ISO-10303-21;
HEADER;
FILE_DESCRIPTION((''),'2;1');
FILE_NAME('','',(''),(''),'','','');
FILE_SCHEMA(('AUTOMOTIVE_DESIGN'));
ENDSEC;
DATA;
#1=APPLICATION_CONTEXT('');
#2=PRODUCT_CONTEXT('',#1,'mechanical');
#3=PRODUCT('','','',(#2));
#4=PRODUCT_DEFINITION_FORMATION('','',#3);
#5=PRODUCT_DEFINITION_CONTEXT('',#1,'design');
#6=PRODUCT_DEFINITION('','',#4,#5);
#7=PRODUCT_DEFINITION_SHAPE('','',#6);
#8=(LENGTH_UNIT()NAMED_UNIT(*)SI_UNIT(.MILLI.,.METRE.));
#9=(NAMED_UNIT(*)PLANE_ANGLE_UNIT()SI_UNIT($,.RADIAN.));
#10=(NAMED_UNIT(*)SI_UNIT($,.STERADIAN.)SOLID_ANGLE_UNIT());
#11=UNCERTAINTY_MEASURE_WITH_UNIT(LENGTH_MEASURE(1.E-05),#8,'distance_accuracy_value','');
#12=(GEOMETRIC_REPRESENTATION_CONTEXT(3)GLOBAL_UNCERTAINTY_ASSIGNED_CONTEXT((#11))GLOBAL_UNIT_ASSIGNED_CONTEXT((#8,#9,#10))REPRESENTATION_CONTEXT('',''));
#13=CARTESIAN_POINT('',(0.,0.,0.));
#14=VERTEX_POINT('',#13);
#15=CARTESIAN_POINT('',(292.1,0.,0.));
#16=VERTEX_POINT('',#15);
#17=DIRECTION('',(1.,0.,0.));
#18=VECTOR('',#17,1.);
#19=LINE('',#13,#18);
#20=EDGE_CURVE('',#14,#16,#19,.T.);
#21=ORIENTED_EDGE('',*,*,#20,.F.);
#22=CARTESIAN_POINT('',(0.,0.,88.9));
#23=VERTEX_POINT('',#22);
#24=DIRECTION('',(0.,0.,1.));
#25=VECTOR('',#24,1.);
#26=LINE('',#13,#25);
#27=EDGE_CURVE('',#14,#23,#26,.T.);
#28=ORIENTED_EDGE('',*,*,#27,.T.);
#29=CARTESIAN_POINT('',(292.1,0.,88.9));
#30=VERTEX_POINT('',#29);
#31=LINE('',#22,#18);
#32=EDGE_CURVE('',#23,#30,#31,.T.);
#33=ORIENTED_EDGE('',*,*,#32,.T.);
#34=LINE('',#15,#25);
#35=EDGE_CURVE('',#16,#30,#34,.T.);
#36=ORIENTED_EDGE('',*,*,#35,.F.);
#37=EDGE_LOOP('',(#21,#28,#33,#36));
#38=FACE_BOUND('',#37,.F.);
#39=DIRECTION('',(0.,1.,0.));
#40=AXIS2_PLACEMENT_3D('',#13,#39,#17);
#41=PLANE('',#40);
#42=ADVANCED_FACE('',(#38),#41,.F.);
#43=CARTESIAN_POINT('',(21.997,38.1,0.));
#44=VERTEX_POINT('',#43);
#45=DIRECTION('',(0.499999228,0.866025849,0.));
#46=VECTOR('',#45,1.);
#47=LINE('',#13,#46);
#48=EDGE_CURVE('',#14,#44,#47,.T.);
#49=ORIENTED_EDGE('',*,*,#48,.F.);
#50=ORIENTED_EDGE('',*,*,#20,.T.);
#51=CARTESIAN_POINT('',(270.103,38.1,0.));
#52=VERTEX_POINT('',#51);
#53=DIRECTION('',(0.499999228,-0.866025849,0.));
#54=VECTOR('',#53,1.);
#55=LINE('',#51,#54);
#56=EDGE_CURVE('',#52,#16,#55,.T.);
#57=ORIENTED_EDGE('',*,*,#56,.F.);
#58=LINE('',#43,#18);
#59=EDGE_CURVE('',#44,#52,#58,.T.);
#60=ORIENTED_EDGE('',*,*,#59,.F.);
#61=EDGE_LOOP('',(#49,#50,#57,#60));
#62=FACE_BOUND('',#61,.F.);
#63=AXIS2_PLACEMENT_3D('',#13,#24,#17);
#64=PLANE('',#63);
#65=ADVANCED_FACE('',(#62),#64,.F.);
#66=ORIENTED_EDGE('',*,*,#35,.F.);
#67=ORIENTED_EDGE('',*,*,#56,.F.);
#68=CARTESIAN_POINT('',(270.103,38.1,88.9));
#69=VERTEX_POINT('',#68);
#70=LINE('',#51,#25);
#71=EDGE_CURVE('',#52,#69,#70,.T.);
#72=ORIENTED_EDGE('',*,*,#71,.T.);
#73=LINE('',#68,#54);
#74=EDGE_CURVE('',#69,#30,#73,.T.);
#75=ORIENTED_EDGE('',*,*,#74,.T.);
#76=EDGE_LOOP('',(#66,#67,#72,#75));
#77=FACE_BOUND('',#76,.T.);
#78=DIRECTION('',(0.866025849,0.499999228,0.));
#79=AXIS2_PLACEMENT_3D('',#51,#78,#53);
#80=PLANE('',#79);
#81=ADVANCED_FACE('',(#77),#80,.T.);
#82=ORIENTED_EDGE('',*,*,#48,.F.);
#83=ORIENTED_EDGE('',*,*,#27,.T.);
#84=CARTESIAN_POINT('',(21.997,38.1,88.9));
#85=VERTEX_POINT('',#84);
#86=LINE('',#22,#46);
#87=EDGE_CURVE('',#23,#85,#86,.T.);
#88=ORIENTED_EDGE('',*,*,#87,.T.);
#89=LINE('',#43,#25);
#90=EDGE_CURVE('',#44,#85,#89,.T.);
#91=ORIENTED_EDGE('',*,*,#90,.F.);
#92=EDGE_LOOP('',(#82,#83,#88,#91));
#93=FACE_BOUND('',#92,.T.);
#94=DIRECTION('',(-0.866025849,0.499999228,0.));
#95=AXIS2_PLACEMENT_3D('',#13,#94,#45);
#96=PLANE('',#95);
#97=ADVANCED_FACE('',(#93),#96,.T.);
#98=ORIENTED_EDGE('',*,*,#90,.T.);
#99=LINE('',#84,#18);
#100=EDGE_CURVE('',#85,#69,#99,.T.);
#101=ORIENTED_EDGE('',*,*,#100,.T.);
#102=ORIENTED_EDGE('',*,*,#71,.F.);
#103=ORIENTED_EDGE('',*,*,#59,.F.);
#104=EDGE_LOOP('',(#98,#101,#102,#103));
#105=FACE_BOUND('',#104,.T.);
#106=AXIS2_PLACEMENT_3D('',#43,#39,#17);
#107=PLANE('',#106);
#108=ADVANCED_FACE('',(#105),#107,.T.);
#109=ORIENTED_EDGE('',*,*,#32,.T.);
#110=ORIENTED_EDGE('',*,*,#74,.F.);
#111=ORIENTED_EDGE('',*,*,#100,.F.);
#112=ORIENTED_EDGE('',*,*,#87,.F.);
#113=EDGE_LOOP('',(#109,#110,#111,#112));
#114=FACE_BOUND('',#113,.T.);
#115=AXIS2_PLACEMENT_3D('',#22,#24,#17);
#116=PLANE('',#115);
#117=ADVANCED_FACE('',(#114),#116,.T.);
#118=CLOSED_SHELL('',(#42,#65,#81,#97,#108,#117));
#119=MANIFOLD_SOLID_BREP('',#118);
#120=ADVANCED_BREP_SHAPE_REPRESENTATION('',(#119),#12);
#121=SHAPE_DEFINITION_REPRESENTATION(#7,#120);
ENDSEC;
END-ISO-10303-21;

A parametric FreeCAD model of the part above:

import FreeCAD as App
import Part
import Sketcher

V = App.Vector
Q = App.Units.Quantity

doc = App.newDocument("Part")
params = doc.addObject("Spreadsheet::Sheet", "Params")
for row, (alias, value) in enumerate([
    ("sketch1_width", "11.5 in"),
    ("pad1_length", "3.5 in"),
], start=1):
    params.set(f"A{row}", alias)
    params.set(f"B{row}", "=" + value)
    params.setAlias(f"B{row}", alias)

body = doc.addObject("PartDesign::Body", "Body")

# Sketch on XY plane
sketch1 = body.newObject("Sketcher::SketchObject", "Sketch")
sketch1.AttachmentSupport = (doc.getObject("XY_Plane"), [""])
sketch1.MapMode = "FlatFace"
sketch1.addGeometry([
    Part.LineSegment(V(22, 38, 0), V(0, 0, 0)),
    Part.LineSegment(V(0, 0, 0), V(292, 0, 0)),
    Part.LineSegment(V(292, 0, 0), V(270, 38, 0)),
    Part.LineSegment(V(270, 38, 0), V(22, 38, 0)),
], False)
sketch1.addConstraint([
    Sketcher.Constraint("Coincident", 0, 2, 1, 1),
    Sketcher.Constraint("Coincident", 1, 2, 2, 1),
    Sketcher.Constraint("Coincident", 2, 2, 3, 1),
    Sketcher.Constraint("Coincident", 3, 2, 0, 1),
    Sketcher.Constraint("Horizontal", 1),
    Sketcher.Constraint("Horizontal", 3),
    Sketcher.Constraint("Coincident", 0, 2, -1, 1),
    Sketcher.Constraint("Equal", 0, 2),
    Sketcher.Constraint("DistanceX", 1, 1, 1, 2, Q("11.5 in")),
    Sketcher.Constraint("DistanceY", -1, 1, 2, 2, Q("1.5 in")),
    Sketcher.Constraint("Angle", 0, Q("-120 deg")),
])
sketch1.setExpression("Constraints[8]", "Params.sketch1_width")
pad1 = body.newObject("PartDesign::Pad", "Pad")
pad1.Profile = sketch1
pad1.setExpression("Length", "Params.pad1_length")

doc.recompute()
